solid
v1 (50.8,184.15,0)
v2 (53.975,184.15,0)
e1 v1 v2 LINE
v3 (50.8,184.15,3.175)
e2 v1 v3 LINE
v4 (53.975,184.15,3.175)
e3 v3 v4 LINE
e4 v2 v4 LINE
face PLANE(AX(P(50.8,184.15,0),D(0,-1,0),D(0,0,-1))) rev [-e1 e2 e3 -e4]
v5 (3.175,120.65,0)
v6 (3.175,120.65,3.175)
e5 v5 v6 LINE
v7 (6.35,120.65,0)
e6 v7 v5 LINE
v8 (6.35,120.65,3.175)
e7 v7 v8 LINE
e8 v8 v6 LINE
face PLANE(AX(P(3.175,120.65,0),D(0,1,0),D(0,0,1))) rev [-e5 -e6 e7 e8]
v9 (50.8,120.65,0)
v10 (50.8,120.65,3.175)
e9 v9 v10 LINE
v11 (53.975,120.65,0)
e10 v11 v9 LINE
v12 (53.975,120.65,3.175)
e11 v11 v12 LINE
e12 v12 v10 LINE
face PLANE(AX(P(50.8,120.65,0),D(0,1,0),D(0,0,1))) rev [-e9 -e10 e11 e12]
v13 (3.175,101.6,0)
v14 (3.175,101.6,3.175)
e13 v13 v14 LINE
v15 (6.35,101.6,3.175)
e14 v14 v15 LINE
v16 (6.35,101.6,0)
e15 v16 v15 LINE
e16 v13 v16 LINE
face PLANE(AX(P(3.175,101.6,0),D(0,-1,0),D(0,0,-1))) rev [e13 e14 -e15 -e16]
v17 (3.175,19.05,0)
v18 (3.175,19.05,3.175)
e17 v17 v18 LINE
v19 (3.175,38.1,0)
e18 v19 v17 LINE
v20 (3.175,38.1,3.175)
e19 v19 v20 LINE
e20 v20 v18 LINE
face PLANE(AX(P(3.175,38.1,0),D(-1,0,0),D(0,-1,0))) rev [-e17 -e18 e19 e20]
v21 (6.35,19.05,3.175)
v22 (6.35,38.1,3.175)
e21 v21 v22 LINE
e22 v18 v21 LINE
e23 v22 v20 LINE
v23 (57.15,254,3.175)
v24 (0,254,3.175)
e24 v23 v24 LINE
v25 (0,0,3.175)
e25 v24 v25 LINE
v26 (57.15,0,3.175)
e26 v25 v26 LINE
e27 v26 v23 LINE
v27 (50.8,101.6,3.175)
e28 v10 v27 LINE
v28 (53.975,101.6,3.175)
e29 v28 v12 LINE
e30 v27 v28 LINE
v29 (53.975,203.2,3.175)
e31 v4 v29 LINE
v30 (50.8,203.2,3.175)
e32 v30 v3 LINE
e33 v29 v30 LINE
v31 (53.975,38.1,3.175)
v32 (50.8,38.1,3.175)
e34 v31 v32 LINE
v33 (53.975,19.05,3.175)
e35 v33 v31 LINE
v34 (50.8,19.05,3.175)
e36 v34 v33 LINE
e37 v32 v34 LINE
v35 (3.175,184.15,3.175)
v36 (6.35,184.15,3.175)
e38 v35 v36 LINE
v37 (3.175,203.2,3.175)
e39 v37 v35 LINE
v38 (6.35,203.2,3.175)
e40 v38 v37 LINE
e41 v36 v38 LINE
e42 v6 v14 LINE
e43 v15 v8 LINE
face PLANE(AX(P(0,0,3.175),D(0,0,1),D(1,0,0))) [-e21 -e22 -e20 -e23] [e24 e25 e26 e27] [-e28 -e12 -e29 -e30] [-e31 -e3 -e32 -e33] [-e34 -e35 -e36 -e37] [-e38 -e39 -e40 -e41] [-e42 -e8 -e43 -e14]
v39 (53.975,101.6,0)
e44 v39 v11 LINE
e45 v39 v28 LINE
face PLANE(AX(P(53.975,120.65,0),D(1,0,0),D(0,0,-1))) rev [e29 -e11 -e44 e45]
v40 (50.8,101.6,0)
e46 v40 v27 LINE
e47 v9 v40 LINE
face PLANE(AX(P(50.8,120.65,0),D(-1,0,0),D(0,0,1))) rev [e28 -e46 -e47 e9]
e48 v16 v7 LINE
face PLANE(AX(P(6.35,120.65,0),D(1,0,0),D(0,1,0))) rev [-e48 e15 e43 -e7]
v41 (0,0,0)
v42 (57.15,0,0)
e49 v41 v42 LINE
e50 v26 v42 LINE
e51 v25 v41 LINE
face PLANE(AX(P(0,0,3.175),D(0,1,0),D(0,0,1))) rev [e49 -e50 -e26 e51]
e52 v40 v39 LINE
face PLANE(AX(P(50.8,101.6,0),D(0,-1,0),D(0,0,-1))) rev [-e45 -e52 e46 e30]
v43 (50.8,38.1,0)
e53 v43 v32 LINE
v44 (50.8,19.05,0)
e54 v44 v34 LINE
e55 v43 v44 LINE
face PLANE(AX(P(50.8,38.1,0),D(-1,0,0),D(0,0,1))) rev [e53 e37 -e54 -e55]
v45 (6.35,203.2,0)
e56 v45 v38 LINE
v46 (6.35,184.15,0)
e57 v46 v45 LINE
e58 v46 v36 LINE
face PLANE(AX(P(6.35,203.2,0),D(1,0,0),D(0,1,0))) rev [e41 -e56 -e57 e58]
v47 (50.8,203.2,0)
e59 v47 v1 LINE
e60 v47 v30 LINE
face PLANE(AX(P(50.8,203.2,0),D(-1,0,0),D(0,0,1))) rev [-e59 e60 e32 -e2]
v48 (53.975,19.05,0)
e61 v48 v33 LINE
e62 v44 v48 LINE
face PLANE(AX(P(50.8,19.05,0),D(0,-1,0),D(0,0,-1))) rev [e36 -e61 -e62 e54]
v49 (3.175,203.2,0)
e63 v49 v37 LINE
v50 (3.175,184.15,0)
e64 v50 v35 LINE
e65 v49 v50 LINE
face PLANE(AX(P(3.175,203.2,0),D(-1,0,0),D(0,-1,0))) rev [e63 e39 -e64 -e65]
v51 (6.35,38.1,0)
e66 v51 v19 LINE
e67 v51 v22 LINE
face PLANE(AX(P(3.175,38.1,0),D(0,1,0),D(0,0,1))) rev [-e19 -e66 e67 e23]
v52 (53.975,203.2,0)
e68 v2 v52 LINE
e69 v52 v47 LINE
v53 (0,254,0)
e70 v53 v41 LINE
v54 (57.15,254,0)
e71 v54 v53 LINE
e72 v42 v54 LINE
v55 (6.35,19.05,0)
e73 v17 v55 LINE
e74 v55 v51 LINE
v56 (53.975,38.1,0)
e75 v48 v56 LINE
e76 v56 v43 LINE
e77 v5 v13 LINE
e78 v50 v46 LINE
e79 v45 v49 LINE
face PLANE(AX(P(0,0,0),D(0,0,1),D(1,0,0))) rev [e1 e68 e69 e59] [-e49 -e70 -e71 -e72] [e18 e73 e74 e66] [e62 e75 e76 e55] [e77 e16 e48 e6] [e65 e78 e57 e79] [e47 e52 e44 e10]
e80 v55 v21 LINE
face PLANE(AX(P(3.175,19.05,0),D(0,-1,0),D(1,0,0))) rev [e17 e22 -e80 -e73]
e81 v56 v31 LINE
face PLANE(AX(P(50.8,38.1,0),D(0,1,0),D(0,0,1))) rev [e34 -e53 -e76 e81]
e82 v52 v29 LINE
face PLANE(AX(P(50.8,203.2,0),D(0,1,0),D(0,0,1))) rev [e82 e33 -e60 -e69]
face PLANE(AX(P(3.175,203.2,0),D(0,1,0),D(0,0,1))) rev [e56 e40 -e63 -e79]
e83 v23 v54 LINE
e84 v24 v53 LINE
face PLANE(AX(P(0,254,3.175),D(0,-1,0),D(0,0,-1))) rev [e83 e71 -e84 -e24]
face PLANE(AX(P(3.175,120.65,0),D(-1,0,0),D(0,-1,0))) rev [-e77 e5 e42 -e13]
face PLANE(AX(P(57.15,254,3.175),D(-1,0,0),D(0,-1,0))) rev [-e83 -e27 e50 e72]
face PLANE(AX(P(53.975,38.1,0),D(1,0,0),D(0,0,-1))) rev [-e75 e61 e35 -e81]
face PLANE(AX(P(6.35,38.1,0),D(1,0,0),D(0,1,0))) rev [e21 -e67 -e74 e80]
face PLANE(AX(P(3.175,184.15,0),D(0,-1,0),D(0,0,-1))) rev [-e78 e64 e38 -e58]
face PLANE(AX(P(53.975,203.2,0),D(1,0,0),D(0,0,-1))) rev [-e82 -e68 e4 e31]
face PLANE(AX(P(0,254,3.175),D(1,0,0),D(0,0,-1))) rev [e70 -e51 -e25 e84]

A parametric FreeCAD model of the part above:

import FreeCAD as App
import Part
import Sketcher

V = App.Vector
Q = App.Units.Quantity

doc = App.newDocument("Part")
params = doc.addObject("Spreadsheet::Sheet", "Params")
for row, (alias, value) in enumerate([
    ("sketch1_height", "10 in"),
    ("sketch1_width", "2.25 in"),
    ("pad1_length", "0.125 in"),
    ("sketch2_height", "0.75 in"),
    ("sketch2_width", "0.125 in"),
], start=1):
    params.set(f"A{row}", alias)
    params.set(f"B{row}", "=" + value)
    params.setAlias(f"B{row}", alias)

body = doc.addObject("PartDesign::Body", "Body")

# Sketch on XY plane
sketch1 = body.newObject("Sketcher::SketchObject", "Sketch")
sketch1.AttachmentSupport = (doc.getObject("XY_Plane"), [""])
sketch1.MapMode = "FlatFace"
sketch1.addGeometry(Part.LineSegment(V(0, 254, 0), V(0, 0, 0)), False)
sketch1.addGeometry(Part.LineSegment(V(0, 0, 0), V(57, 0, 0)), False)
sketch1.addGeometry(Part.LineSegment(V(57, 0, 0), V(57, 254, 0)), False)
sketch1.addGeometry(Part.LineSegment(V(57, 254, 0), V(0, 254, 0)), False)
sketch1.addConstraint(Sketcher.Constraint("Coincident", 0, 2, 1, 1))
sketch1.addConstraint(Sketcher.Constraint("Coincident", 1, 2, 2, 1))
sketch1.addConstraint(Sketcher.Constraint("Coincident", 2, 2, 3, 1))
sketch1.addConstraint(Sketcher.Constraint("Coincident", 3, 2, 0, 1))
sketch1.addConstraint(Sketcher.Constraint("Vertical", 0))
sketch1.addConstraint(Sketcher.Constraint("Horizontal", 1))
sketch1.addConstraint(Sketcher.Constraint("Vertical", 2))
sketch1.addConstraint(Sketcher.Constraint("Horizontal", 3))
sketch1.addConstraint(Sketcher.Constraint("Coincident", 0, 2, -1, 1))
sketch1.addConstraint(Sketcher.Constraint("DistanceY", 0, 2, 0, 1, Q("10 in")))
sketch1.addConstraint(Sketcher.Constraint("DistanceX", 1, 1, 1, 2, Q("2.25 in")))
sketch1.setExpression("Constraints[9]", "Params.sketch1_height")
sketch1.setExpression("Constraints[10]", "Params.sketch1_width")
pad1 = body.newObject("PartDesign::Pad", "Pad")
pad1.Profile = sketch1
pad1.setExpression("Length", "Params.pad1_length")

# Sketch on XY plane
sketch2 = body.newObject("Sketcher::SketchObject", "Sketch001")
sketch2.AttachmentSupport = (doc.getObject("XY_Plane"), [""])
sketch2.MapMode = "FlatFace"
sketch2.AttachmentOffset = App.Placement(V(0, 0, 0.125 * 25.4), App.Rotation())
sketch2.addGeometry(Part.LineSegment(V(3.2, 203.2, 0), V(3.2, 184.2, 0)), False)
sketch2.addGeometry(Part.LineSegment(V(3.2, 184.2, 0), V(6.3, 184.2, 0)), False)
sketch2.addGeometry(Part.LineSegment(V(6.3, 184.2, 0), V(6.3, 203.2, 0)), False)
sketch2.addGeometry(Part.LineSegment(V(6.3, 203.2, 0), V(3.2, 203.2, 0)), False)
sketch2.addGeometry(Part.LineSegment(V(3.2, 120.7, 0), V(3.2, 101.6, 0)), False)
sketch2.addGeometry(Part.LineSegment(V(3.2, 101.6, 0), V(6.3, 101.6, 0)), False)
sketch2.addGeometry(Part.LineSegment(V(6.3, 101.6, 0), V(6.3, 120.7, 0)), False)
sketch2.addGeometry(Part.LineSegment(V(6.3, 120.7, 0), V(3.2, 120.7, 0)), False)
sketch2.addGeometry(Part.LineSegment(V(3.2, 38.1, 0), V(3.2, 19.1, 0)), False)
sketch2.addGeometry(Part.LineSegment(V(3.2, 19.1, 0), V(6.3, 19.1, 0)), False)
sketch2.addGeometry(Part.LineSegment(V(6.3, 19.1, 0), V(6.3, 38.1, 0)), False)
sketch2.addGeometry(Part.LineSegment(V(6.3, 38.1, 0), V(3.2, 38.1, 0)), False)
sketch2.addGeometry(Part.LineSegment(V(50.8, 203.2, 0), V(50.8, 184.2, 0)), False)
sketch2.addGeometry(Part.LineSegment(V(50.8, 184.2, 0), V(54, 184.2, 0)), False)
sketch2.addGeometry(Part.LineSegment(V(54, 184.2, 0), V(54, 203.2, 0)), False)
sketch2.addGeometry(Part.LineSegment(V(54, 203.2, 0), V(50.8, 203.2, 0)), False)
sketch2.addGeometry(Part.LineSegment(V(50.8, 120.7, 0), V(50.8, 101.6, 0)), False)
sketch2.addGeometry(Part.LineSegment(V(50.8, 101.6, 0), V(54, 101.6, 0)), False)
sketch2.addGeometry(Part.LineSegment(V(54, 101.6, 0), V(54, 120.7, 0)), False)
sketch2.addGeometry(Part.LineSegment(V(54, 120.7, 0), V(50.8, 120.7, 0)), False)
sketch2.addGeometry(Part.LineSegment(V(50.8, 38.1, 0), V(50.8, 19.1, 0)), False)
sketch2.addGeometry(Part.LineSegment(V(50.8, 19.1, 0), V(54, 19.1, 0)), False)
sketch2.addGeometry(Part.LineSegment(V(54, 19.1, 0), V(54, 38.1, 0)), False)
sketch2.addGeometry(Part.LineSegment(V(54, 38.1, 0), V(50.8, 38.1, 0)), False)
sketch2.addConstraint(Sketcher.Constraint("Coincident", 0, 2, 1, 1))
sketch2.addConstraint(Sketcher.Constraint("Coincident", 1, 2, 2, 1))
sketch2.addConstraint(Sketcher.Constraint("Coincident", 2, 2, 3, 1))
sketch2.addConstraint(Sketcher.Constraint("Coincident", 3, 2, 0, 1))
sketch2.addConstraint(Sketcher.Constraint("Coincident", 4, 2, 5, 1))
sketch2.addConstraint(Sketcher.Constraint("Coincident", 5, 2, 6, 1))
sketch2.addConstraint(Sketcher.Constraint("Coincident", 6, 2, 7, 1))
sketch2.addConstraint(Sketcher.Constraint("Coincident", 7, 2, 4, 1))
sketch2.addConstraint(Sketcher.Constraint("Coincident", 8, 2, 9, 1))
sketch2.addConstraint(Sketcher.Constraint("Coincident", 9, 2, 10, 1))
sketch2.addConstraint(Sketcher.Constraint("Coincident", 10, 2, 11, 1))
sketch2.addConstraint(Sketcher.Constraint("Coincident", 11, 2, 8, 1))
sketch2.addConstraint(Sketcher.Constraint("Coincident", 12, 2, 13, 1))
sketch2.addConstraint(Sketcher.Constraint("Coincident", 13, 2, 14, 1))
sketch2.addConstraint(Sketcher.Constraint("Coincident", 14, 2, 15, 1))
sketch2.addConstraint(Sketcher.Constraint("Coincident", 15, 2, 12, 1))
sketch2.addConstraint(Sketcher.Constraint("Coincident", 16, 2, 17, 1))
sketch2.addConstraint(Sketcher.Constraint("Coincident", 17, 2, 18, 1))
sketch2.addConstraint(Sketcher.Constraint("Coincident", 18, 2, 19, 1))
sketch2.addConstraint(Sketcher.Constraint("Coincident", 19, 2, 16, 1))
sketch2.addConstraint(Sketcher.Constraint("Coincident", 20, 2, 21, 1))
sketch2.addConstraint(Sketcher.Constraint("Coincident", 21, 2, 22, 1))
sketch2.addConstraint(Sketcher.Constraint("Coincident", 22, 2, 23, 1))
sketch2.addConstraint(Sketcher.Constraint("Coincident", 23, 2, 20, 1))
sketch2.addConstraint(Sketcher.Constraint("Vertical", 0))
sketch2.addConstraint(Sketcher.Constraint("Horizontal", 1))
sketch2.addConstraint(Sketcher.Constraint("Vertical", 2))
sketch2.addConstraint(Sketcher.Constraint("Horizontal", 3))
sketch2.addConstraint(Sketcher.Constraint("Vertical", 4))
sketch2.addConstraint(Sketcher.Constraint("Horizontal", 5))
sketch2.addConstraint(Sketcher.Constraint("Vertical", 6))
sketch2.addConstraint(Sketcher.Constraint("Horizontal", 7))
sketch2.addConstraint(Sketcher.Constraint("Vertical", 8))
sketch2.addConstraint(Sketcher.Constraint("Horizontal", 9))
sketch2.addConstraint(Sketcher.Constraint("Vertical", 10))
sketch2.addConstraint(Sketcher.Constraint("Horizontal", 11))
sketch2.addConstraint(Sketcher.Constraint("Vertical", 12))
sketch2.addConstraint(Sketcher.Constraint("Horizontal", 13))
sketch2.addConstraint(Sketcher.Constraint("Vertical", 14))
sketch2.addConstraint(Sketcher.Constraint("Horizontal", 15))
sketch2.addConstraint(Sketcher.Constraint("Vertical", 16))
sketch2.addConstraint(Sketcher.Constraint("Horizontal", 17))
sketch2.addConstraint(Sketcher.Constraint("Vertical", 18))
sketch2.addConstraint(Sketcher.Constraint("Horizontal", 19))
sketch2.addConstraint(Sketcher.Constraint("Vertical", 20))
sketch2.addConstraint(Sketcher.Constraint("Horizontal", 21))
sketch2.addConstraint(Sketcher.Constraint("Vertical", 22))
sketch2.addConstraint(Sketcher.Constraint("Horizontal", 23))
sketch2.addConstraint(Sketcher.Constraint("Horizontal", 1, 2, 12, 2))
sketch2.addConstraint(Sketcher.Constraint("Horizontal", 3, 2, 14, 2))
sketch2.addConstraint(Sketcher.Constraint("Horizontal", 5, 2, 16, 2))
sketch2.addConstraint(Sketcher.Constraint("Horizontal", 7, 2, 18, 2))
sketch2.addConstraint(Sketcher.Constraint("Horizontal", 9, 2, 20, 2))
sketch2.addConstraint(Sketcher.Constraint("Horizontal", 11, 2, 22, 2))
sketch2.addConstraint(Sketcher.Constraint("Vertical", 3, 2, 4, 2))
sketch2.addConstraint(Sketcher.Constraint("Vertical", 2, 2, 5, 2))
sketch2.addConstraint(Sketcher.Constraint("Vertical", 7, 2, 8, 2))
sketch2.addConstraint(Sketcher.Constraint("Vertical", 6, 2, 9, 2))
sketch2.addConstraint(Sketcher.Constraint("Vertical", 15, 2, 16, 2))
sketch2.addConstraint(Sketcher.Constraint("Vertical", 14, 2, 17, 2))
sketch2.addConstraint(Sketcher.Constraint("Vertical", 19, 2, 20, 2))
sketch2.addConstraint(Sketcher.Constraint("Vertical", 18, 2, 21, 2))
sketch2.addConstraint(Sketcher.Constraint("Equal", 11, 13))
sketch2.addConstraint(Sketcher.Constraint("Equal", 2, 4))
sketch2.addConstraint(Sketcher.Constraint("Equal", 6, 8))
sketch2.addConstraint(Sketcher.Constraint("DistanceY", -1, 1, 2, 2, Q("8 in")))
sketch2.addConstraint(Sketcher.Constraint("DistanceY", -1, 1, 4, 2, Q("4 in")))
sketch2.addConstraint(Sketcher.Constraint("DistanceX", -1, 1, 12, 2, Q("2 in")))
sketch2.addConstraint(Sketcher.Constraint("DistanceY", 8, 2, 7, 2, Q("4 in")))
sketch2.addConstraint(Sketcher.Constraint("DistanceX", 0, 2, 13, 2, Q("2 in")))
sketch2.addConstraint(Sketcher.Constraint("DistanceY", 0, 2, 0, 1, Q("0.75 in")))
sketch2.addConstraint(Sketcher.Constraint("DistanceX", 1, 1, 1, 2, Q("0.125 in")))
sketch2.setExpression("Constraints[70]", "Params.sketch2_height")
sketch2.setExpression("Constraints[71]", "Params.sketch2_width")
pocket1 = body.newObject("PartDesign::Pocket", "Pocket")
pocket1.Profile = sketch2
pocket1.Type = "ThroughAll"

doc.recompute()
